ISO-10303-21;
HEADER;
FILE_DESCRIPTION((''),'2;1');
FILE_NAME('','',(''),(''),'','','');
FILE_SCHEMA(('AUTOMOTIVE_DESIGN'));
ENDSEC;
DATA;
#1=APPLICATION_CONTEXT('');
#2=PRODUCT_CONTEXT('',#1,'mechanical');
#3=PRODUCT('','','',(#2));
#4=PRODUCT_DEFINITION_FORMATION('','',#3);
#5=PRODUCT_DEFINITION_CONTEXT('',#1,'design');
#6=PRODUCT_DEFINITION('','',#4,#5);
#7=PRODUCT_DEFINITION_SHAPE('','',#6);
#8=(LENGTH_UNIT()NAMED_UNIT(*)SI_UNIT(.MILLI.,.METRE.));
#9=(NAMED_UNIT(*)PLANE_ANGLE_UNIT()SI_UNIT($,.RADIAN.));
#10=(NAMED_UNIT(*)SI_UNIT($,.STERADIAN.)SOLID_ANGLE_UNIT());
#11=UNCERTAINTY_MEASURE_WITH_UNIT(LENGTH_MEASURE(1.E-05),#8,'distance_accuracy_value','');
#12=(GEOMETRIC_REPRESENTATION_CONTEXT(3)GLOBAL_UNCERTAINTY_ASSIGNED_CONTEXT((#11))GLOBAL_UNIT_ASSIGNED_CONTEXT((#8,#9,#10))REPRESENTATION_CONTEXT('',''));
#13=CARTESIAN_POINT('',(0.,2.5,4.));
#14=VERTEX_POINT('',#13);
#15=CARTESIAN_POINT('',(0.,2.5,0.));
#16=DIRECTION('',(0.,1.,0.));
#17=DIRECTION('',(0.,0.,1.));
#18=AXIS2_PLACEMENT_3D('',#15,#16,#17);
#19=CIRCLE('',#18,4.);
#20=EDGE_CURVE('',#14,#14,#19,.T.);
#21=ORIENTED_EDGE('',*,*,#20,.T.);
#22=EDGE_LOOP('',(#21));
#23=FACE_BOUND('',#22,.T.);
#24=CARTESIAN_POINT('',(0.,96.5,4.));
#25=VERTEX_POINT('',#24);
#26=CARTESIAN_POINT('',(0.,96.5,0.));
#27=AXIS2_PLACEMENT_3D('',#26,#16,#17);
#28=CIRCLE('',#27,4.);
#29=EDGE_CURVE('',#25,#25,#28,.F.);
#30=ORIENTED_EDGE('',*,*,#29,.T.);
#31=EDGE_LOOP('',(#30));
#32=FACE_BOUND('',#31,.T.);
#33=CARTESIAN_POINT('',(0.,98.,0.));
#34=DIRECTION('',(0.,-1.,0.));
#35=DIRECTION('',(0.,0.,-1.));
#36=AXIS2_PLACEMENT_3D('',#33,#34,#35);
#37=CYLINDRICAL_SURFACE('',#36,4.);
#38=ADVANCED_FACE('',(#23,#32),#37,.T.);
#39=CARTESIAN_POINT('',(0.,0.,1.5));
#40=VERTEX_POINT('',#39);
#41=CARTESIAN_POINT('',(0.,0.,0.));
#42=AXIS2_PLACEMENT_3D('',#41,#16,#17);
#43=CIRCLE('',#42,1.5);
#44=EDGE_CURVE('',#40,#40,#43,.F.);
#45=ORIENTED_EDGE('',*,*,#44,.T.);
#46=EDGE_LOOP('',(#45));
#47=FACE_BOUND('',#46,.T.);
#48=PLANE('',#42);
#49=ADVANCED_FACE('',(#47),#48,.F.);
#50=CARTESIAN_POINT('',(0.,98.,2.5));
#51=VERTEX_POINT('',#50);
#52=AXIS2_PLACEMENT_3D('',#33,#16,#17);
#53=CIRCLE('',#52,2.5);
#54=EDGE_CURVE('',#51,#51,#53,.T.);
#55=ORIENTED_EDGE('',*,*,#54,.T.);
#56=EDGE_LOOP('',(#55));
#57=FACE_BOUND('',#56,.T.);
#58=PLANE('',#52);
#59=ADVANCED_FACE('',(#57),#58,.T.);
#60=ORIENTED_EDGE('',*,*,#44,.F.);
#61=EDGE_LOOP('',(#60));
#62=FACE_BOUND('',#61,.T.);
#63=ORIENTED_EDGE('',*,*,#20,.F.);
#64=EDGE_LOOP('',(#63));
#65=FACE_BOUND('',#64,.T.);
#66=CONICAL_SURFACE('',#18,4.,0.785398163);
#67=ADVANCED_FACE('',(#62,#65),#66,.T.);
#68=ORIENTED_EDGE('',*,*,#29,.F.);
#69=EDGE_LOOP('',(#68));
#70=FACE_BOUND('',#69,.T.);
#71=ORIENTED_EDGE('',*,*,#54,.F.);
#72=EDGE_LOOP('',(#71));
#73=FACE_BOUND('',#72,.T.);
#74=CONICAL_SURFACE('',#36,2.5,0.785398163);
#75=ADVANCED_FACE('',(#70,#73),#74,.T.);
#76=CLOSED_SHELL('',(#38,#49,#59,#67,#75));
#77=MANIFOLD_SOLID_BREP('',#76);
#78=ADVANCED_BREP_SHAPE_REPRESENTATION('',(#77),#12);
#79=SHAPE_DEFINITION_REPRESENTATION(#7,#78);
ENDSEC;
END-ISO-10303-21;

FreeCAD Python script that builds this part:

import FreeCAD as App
import Part
import Sketcher
Q = App.Units.Quantity


def edges_at(feature, points):
    """Names of the edges that pass closest to the given points."""
    edges = feature.Shape.Edges
    near = lambda p: min(range(len(edges)), key=lambda i: edges[i].distToShape(Part.Vertex(*p))[0])
    return sorted({f"Edge{near(p) + 1}" for p in points})

doc = App.newDocument("Part")
body = doc.addObject("PartDesign::Body", "Body")

sketch1 = doc.addObject("Sketcher::SketchObject", "Sketch")
body.addObject(sketch1)
sketch1.AttachmentSupport = (doc.XZ_Plane, [""])
sketch1.MapMode = "FlatFace"
sketch1.addGeometry(Part.Circle(App.Vector(0, 0, 0), App.Vector(0, 0, 1), 4), False)
sketch1.addConstraint([
    Sketcher.Constraint("Coincident", 0, 3, -1, 1),
    Sketcher.Constraint("Diameter", 0, Q("8 mm")),
])
pad1 = doc.addObject("PartDesign::Pad", "Pad")
body.addObject(pad1)
pad1.Profile = sketch1
pad1.Length = 98
pad1.Reversed = True
doc.recompute()

chamfer = doc.addObject("PartDesign::Chamfer", "Chamfer")
body.addObject(chamfer)
chamfer.Base = (pad1, edges_at(pad1, [(0, 0, -4)]))
chamfer.Size = 2.5
doc.recompute()

chamfer2 = doc.addObject("PartDesign::Chamfer", "Chamfer001")
body.addObject(chamfer2)
chamfer2.Base = (chamfer, edges_at(chamfer, [(0, 98, -4)]))
chamfer2.Size = 1.5

doc.recompute()
